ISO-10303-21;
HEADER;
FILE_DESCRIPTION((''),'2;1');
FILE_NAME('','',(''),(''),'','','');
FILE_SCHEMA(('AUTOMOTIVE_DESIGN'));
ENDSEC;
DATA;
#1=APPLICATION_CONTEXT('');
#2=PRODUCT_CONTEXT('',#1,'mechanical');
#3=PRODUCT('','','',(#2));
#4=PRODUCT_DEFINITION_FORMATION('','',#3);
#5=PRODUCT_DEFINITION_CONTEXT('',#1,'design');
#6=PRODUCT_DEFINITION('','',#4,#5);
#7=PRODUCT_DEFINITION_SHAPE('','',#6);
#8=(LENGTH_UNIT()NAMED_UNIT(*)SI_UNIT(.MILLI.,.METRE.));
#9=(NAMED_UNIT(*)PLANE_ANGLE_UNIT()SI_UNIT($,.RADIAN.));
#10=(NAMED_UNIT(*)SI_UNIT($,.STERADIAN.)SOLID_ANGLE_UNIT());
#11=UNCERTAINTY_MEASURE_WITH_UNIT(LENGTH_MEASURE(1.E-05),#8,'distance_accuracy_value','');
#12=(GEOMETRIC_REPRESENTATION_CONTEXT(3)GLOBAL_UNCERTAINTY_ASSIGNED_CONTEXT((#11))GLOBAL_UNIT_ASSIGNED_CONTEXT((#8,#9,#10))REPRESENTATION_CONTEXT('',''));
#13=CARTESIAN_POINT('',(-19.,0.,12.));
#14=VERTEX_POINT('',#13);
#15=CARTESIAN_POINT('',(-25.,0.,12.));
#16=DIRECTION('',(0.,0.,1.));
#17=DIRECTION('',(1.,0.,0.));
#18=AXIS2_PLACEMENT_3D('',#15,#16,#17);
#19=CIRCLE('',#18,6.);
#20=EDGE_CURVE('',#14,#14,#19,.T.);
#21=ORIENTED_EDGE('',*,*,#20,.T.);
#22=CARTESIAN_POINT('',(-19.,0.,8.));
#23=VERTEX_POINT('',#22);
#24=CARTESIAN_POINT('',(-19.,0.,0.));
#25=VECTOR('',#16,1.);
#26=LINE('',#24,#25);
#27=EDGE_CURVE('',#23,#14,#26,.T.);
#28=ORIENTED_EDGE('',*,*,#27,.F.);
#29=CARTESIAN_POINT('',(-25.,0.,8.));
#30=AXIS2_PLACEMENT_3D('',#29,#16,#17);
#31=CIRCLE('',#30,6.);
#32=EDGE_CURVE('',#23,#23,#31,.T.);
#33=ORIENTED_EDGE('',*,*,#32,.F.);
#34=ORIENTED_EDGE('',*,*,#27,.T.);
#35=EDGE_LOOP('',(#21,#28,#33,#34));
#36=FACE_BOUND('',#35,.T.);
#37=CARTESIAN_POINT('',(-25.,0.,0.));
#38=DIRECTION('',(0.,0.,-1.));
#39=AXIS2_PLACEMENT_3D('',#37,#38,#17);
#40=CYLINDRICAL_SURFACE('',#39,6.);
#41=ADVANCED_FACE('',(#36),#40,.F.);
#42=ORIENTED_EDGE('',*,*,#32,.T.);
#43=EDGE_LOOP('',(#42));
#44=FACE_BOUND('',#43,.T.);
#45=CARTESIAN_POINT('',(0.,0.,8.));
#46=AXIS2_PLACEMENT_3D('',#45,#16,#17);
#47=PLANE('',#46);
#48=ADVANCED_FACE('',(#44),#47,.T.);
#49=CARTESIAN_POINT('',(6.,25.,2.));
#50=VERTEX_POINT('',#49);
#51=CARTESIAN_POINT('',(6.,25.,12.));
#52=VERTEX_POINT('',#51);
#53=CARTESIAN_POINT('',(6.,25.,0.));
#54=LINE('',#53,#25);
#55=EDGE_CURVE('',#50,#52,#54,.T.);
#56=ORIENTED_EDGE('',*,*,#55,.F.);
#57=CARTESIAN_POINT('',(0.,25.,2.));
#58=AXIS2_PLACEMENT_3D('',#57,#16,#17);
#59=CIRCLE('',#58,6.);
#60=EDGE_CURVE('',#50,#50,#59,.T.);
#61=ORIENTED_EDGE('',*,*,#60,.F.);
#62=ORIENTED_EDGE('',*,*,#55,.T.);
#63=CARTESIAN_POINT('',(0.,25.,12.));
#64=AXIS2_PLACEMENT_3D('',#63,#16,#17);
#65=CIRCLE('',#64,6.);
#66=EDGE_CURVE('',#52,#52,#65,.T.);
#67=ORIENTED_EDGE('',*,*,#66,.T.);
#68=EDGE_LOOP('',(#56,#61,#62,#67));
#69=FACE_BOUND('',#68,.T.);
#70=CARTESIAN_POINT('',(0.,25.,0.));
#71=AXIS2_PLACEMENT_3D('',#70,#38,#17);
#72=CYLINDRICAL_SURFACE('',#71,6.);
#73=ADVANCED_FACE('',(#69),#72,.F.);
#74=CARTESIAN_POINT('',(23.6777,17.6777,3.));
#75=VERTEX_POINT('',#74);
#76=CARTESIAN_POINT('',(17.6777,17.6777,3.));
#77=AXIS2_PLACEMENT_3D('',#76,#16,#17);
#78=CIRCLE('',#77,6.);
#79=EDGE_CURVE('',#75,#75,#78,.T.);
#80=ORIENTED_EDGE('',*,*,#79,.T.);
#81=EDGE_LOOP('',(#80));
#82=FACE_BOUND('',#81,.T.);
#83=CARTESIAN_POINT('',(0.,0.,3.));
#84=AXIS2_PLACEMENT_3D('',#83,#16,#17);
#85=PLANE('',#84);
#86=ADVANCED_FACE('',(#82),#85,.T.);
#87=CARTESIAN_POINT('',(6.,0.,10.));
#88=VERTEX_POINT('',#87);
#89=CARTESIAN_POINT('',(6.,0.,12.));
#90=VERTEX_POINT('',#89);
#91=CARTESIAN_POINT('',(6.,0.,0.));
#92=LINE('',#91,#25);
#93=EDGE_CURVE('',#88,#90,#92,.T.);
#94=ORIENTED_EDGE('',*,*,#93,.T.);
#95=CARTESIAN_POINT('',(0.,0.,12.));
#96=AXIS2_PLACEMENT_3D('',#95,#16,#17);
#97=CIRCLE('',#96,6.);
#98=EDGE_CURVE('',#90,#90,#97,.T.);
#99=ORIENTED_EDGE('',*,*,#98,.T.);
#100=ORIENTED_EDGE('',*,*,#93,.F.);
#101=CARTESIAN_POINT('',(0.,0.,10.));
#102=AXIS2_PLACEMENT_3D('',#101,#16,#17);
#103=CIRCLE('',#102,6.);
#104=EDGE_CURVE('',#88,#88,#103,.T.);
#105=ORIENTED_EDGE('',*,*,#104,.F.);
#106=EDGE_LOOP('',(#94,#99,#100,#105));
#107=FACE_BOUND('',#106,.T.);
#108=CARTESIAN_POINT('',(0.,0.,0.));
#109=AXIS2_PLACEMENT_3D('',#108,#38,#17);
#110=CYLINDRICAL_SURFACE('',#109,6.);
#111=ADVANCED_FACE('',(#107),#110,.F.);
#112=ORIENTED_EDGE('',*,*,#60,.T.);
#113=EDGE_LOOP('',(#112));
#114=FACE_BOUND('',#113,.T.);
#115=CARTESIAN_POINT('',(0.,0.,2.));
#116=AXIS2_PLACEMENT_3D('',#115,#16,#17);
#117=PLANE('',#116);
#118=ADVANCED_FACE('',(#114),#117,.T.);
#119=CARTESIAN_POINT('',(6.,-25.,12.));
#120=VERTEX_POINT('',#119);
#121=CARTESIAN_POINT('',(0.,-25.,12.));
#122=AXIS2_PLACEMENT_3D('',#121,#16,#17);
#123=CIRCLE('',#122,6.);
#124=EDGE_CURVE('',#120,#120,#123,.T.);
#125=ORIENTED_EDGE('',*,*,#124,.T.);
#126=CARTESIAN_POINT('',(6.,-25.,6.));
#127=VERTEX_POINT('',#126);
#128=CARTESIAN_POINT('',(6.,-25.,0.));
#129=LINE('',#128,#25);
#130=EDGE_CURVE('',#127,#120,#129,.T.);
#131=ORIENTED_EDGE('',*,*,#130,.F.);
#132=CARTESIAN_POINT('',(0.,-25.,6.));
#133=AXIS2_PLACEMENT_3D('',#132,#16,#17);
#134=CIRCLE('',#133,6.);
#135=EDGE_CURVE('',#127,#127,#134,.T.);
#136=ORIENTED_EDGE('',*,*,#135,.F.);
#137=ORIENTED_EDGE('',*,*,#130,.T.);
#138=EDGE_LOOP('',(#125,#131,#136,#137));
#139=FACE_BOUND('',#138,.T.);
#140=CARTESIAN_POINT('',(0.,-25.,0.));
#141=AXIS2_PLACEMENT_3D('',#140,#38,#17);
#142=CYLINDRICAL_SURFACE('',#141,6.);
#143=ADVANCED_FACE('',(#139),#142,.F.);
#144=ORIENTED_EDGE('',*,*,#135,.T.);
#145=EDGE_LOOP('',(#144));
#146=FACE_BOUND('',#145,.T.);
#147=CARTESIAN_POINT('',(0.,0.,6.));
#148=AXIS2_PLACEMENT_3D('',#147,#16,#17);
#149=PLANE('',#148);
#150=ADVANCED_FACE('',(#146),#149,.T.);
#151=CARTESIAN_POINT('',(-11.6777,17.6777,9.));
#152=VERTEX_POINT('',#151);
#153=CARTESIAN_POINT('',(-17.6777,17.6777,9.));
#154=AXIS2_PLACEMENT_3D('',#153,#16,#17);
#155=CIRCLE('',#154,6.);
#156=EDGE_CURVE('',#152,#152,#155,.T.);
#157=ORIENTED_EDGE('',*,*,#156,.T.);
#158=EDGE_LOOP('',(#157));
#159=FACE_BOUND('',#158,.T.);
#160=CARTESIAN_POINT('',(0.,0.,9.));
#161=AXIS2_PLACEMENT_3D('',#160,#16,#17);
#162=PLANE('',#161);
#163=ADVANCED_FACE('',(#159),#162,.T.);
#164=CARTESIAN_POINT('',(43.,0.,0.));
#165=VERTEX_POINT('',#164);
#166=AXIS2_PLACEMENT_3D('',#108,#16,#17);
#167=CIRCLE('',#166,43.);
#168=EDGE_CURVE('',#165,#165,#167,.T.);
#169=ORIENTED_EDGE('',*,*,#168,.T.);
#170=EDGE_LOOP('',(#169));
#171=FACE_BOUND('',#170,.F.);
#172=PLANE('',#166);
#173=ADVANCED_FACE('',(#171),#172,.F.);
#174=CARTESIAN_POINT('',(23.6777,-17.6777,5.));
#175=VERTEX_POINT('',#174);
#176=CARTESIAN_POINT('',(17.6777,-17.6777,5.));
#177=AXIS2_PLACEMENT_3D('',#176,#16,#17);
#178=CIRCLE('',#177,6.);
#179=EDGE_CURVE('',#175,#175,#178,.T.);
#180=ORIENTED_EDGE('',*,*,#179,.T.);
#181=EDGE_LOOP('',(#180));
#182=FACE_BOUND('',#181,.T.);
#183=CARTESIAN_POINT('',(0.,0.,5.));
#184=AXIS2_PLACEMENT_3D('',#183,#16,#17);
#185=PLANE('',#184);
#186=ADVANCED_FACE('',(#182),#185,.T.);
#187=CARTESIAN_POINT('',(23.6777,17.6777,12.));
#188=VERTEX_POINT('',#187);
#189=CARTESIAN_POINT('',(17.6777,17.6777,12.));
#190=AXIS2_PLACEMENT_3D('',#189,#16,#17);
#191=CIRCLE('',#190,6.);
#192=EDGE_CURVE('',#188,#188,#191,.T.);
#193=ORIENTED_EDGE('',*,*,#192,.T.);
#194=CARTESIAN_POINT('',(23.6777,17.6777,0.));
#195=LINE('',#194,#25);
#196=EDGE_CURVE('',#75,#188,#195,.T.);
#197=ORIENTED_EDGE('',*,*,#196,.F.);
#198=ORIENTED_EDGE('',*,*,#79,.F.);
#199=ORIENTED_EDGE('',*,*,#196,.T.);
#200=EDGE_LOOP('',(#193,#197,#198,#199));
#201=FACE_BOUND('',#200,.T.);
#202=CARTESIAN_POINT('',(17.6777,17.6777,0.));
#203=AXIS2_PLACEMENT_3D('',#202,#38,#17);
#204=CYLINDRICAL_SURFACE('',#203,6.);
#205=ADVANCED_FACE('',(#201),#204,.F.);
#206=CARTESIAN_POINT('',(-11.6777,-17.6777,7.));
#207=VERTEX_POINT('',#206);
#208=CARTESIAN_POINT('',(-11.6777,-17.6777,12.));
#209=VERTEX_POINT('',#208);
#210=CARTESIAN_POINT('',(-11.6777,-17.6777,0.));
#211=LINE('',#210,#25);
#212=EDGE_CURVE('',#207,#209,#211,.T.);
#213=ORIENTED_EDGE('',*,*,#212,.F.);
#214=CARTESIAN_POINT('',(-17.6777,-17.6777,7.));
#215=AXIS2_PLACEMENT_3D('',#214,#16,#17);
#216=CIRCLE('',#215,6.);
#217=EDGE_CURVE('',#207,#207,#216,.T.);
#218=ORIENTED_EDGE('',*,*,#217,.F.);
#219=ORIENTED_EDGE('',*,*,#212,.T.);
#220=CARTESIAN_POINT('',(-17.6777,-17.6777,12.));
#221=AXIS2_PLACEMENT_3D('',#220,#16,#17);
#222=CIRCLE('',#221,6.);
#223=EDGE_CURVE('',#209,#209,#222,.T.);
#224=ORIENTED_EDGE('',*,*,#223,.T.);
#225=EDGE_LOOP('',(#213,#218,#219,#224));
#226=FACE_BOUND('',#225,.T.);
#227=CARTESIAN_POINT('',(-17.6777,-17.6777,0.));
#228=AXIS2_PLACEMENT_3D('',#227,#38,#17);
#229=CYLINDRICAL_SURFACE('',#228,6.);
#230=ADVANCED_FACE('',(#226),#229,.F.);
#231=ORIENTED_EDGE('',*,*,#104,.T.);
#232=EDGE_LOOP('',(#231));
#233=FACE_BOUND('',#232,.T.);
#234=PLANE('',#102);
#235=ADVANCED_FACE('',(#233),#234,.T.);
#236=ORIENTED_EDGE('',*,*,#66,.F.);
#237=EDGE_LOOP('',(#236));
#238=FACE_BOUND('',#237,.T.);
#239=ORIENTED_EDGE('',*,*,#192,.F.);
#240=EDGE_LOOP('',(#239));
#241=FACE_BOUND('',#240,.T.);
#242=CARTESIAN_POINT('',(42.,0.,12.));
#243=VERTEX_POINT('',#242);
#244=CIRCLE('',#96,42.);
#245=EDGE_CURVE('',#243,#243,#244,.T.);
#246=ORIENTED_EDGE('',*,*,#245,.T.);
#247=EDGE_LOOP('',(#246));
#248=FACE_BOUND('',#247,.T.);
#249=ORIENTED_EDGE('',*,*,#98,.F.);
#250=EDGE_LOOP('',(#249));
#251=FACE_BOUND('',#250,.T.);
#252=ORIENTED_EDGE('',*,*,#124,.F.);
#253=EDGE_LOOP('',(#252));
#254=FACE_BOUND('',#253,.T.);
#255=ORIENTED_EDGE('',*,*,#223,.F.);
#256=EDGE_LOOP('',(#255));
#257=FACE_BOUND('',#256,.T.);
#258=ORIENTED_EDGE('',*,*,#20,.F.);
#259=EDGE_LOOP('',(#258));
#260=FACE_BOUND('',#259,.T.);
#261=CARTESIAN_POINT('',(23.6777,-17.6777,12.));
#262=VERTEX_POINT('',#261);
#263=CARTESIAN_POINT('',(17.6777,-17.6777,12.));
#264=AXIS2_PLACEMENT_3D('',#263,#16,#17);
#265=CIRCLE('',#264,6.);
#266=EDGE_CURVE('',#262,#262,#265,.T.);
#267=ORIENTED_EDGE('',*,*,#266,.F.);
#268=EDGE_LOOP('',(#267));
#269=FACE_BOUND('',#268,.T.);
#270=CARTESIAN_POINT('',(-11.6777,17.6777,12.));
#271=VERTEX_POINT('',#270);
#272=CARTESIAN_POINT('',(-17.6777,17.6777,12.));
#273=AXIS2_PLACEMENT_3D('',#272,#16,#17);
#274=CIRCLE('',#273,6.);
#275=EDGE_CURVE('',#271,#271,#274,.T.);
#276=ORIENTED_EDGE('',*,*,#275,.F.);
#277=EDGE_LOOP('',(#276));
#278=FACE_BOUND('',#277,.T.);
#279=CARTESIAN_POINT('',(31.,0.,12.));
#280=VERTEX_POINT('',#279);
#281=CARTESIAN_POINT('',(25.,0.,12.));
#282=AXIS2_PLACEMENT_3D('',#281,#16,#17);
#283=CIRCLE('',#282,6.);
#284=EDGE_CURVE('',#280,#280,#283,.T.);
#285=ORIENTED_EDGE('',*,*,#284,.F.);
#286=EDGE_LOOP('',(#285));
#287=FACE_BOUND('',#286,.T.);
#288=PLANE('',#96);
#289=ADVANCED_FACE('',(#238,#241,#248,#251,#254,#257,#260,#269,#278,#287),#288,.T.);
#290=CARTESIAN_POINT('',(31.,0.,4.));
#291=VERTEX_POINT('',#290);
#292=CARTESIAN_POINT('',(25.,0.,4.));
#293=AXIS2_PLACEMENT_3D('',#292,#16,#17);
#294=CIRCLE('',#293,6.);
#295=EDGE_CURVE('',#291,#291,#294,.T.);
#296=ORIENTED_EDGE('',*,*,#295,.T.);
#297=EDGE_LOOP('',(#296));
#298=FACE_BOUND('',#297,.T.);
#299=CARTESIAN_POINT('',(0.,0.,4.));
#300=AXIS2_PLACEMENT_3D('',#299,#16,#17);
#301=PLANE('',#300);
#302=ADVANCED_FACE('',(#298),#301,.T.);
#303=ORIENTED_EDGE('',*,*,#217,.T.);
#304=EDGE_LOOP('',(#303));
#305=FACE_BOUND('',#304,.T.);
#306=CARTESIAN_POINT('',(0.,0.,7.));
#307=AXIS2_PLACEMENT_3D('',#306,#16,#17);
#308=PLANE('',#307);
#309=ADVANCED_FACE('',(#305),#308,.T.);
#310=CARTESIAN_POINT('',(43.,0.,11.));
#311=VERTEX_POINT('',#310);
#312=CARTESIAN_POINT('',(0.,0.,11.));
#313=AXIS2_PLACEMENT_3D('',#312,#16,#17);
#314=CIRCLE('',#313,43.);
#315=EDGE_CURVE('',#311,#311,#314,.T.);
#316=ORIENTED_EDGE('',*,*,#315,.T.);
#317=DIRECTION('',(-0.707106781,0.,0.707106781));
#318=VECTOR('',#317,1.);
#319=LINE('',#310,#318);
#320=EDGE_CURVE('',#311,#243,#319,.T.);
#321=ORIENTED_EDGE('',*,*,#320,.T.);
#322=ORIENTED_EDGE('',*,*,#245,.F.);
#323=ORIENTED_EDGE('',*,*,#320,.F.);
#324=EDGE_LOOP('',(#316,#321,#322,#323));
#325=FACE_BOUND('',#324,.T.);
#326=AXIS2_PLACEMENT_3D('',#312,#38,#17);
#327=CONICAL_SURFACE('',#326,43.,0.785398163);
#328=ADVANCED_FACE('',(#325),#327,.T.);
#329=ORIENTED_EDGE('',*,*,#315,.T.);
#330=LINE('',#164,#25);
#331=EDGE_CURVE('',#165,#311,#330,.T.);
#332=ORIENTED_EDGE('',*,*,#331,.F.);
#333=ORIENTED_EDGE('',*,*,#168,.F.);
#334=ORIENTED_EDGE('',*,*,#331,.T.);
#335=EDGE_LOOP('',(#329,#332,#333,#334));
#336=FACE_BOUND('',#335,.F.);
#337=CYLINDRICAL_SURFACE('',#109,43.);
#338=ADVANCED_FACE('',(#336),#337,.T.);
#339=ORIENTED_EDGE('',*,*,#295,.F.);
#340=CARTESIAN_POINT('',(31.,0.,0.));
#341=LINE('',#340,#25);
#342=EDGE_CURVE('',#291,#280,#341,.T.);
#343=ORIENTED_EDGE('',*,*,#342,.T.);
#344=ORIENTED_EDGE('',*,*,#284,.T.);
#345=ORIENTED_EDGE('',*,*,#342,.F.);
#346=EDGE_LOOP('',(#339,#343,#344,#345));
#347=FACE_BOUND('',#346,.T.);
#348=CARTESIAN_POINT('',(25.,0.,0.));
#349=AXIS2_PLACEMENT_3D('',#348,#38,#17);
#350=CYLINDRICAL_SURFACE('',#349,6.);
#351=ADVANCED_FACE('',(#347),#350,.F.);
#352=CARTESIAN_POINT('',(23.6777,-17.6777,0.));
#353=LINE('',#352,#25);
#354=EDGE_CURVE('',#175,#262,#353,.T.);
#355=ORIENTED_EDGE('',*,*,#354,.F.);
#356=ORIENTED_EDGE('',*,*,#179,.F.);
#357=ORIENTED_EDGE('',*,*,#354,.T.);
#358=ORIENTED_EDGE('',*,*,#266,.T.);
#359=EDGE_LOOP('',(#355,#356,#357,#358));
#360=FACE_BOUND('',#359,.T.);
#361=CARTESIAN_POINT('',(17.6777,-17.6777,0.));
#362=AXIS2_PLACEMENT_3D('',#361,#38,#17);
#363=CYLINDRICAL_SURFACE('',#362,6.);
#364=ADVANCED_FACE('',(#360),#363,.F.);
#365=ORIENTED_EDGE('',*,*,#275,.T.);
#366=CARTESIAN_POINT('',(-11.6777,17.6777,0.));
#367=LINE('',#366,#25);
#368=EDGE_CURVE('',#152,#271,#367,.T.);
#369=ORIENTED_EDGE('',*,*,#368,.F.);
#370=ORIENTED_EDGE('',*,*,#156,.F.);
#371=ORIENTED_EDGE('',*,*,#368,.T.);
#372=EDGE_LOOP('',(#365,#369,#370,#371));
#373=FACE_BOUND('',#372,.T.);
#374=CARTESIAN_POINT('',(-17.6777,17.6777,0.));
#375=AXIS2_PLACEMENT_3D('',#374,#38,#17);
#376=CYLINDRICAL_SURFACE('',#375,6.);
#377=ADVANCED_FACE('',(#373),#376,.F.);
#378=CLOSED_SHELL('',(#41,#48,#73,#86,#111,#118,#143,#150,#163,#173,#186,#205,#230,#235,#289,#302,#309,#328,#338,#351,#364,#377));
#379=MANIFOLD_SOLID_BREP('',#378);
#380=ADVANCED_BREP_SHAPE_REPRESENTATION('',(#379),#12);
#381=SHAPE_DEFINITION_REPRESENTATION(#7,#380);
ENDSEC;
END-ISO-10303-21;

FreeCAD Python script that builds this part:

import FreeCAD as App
import Part
import Sketcher

V = App.Vector


def edges_at(feature, points):
    """Names of the edges that pass closest to the given points."""
    edges = feature.Shape.Edges
    near = lambda p: min(range(len(edges)), key=lambda i: edges[i].distToShape(Part.Vertex(*p))[0])
    return sorted({f"Edge{near(p) + 1}" for p in points})

doc = App.newDocument("Part")
body = doc.addObject("PartDesign::Body", "Body")

# Sketch on XY plane
sketch1 = doc.addObject("Sketcher::SketchObject", "Sketch")
body.addObject(sketch1)
sketch1.AttachmentSupport = (doc.XY_Plane, [""])
sketch1.MapMode = "FlatFace"
sketch1.addGeometry(Part.Circle(V(0, 0, 0), V(0, 0, 1), 43), False)
sketch1.addGeometry(Part.Circle(V(-17.6777, -17.6777, 0), V(0, 0, 1), 6), False)
sketch1.addGeometry(Part.Circle(V(0, -25, 0), V(0, 0, 1), 6), False)
sketch1.addGeometry(Part.Circle(V(17.6777, -17.6777, 0), V(0, 0, 1), 6), False)
sketch1.addGeometry(Part.Circle(V(-25, 0, 0), V(0, 0, 1), 6), False)
sketch1.addGeometry(Part.Circle(V(-17.6777, 17.6777, 0), V(0, 0, 1), 6), False)
sketch1.addGeometry(Part.Circle(V(0, 0, 0), V(0, 0, 1), 6), False)
sketch1.addGeometry(Part.Circle(V(17.6777, 17.6777, 0), V(0, 0, 1), 6), False)
sketch1.addGeometry(Part.Circle(V(25, 0, 0), V(0, 0, 1), 6), False)
sketch1.addGeometry(Part.Circle(V(0, 25, 0), V(0, 0, 1), 6), False)
sketch1.addConstraint(Sketcher.Constraint("Coincident", 0, 3, -1, 1))
sketch1.addConstraint(Sketcher.Constraint("Coincident", 6, 3, -1, 1))
sketch1.addConstraint(Sketcher.Constraint("Equal", 1, 2))
sketch1.addConstraint(Sketcher.Constraint("Equal", 2, 3))
sketch1.addConstraint(Sketcher.Constraint("Equal", 3, 4))
sketch1.addConstraint(Sketcher.Constraint("Equal", 4, 5))
sketch1.addConstraint(Sketcher.Constraint("Equal", 5, 6))
sketch1.addConstraint(Sketcher.Constraint("Equal", 6, 7))
sketch1.addConstraint(Sketcher.Constraint("Equal", 7, 8))
sketch1.addConstraint(Sketcher.Constraint("Equal", 8, 9))
sketch1.addConstraint(Sketcher.Constraint("Symmetric", 3, 3, 5, 3, -1, 1))
sketch1.addConstraint(Sketcher.Constraint("Symmetric", 1, 3, 7, 3, -1, 1))
sketch1.addConstraint(Sketcher.Constraint("Symmetric", 4, 3, 8, 3, -1, 1))
sketch1.addConstraint(Sketcher.Constraint("Symmetric", 2, 3, 9, 3, -1, 1))
sketch1.addConstraint(Sketcher.Constraint("Symmetric", 1, 3, 3, 3, -2))
sketch1.addConstraint(Sketcher.Constraint("PointOnObject", 2, 3, -2))
sketch1.addConstraint(Sketcher.Constraint("PointOnObject", 4, 3, -1))
sketch1.addConstraint(Sketcher.Constraint("Diameter", 0, 86.0))
sketch1.addConstraint(Sketcher.Constraint("Diameter", 1, 12.0))
sketch1.addConstraint(Sketcher.Constraint("DistanceY", 2, 3, -1, 1, 25.0))
sketch1.addConstraint(Sketcher.Constraint("DistanceX", 4, 3, -1, 1, 25.0))
sketch1.addConstraint(Sketcher.Constraint("DistanceX", 1, 3, -1, 1, 17.6777))
sketch1.addConstraint(Sketcher.Constraint("DistanceY", 1, 3, -1, 1, 17.6777))
pad1 = doc.addObject("PartDesign::Pad", "Pad")
body.addObject(pad1)
pad1.Profile = sketch1
pad1.Length = 12

# Sketch on XY plane
sketch2 = doc.addObject("Sketcher::SketchObject", "Sketch001")
body.addObject(sketch2)
sketch2.AttachmentSupport = (doc.XY_Plane, [""])
sketch2.MapMode = "FlatFace"
sketch2.addGeometry(Part.Circle(V(0, 25, 0), V(0, 0, 1), 6), False)
sketch2.addConstraint(Sketcher.Constraint("PointOnObject", 0, 3, -2))
sketch2.addConstraint(Sketcher.Constraint("Diameter", 0, 12.0))
sketch2.addConstraint(Sketcher.Constraint("DistanceY", -1, 1, 0, 3, 25.0))
pad2 = doc.addObject("PartDesign::Pad", "Pad001")
body.addObject(pad2)
pad2.Profile = sketch2
pad2.Length = 2

# Sketch on XY plane
sketch3 = doc.addObject("Sketcher::SketchObject", "Sketch002")
body.addObject(sketch3)
sketch3.AttachmentSupport = (doc.XY_Plane, [""])
sketch3.MapMode = "FlatFace"
sketch3.addGeometry(Part.Circle(V(17.6777, 17.6777, 0), V(0, 0, 1), 6), False)
sketch3.addConstraint(Sketcher.Constraint("Diameter", 0, 12.0))
sketch3.addConstraint(Sketcher.Constraint("DistanceX", -1, 1, 0, 3, 17.6777))
sketch3.addConstraint(Sketcher.Constraint("DistanceY", -1, 1, 0, 3, 17.6777))
pad3 = doc.addObject("PartDesign::Pad", "Pad002")
body.addObject(pad3)
pad3.Profile = sketch3
pad3.Length = 3

# Sketch on XY plane
sketch4 = doc.addObject("Sketcher::SketchObject", "Sketch003")
body.addObject(sketch4)
sketch4.AttachmentSupport = (doc.XY_Plane, [""])
sketch4.MapMode = "FlatFace"
sketch4.addGeometry(Part.Circle(V(25, 0, 0), V(0, 0, 1), 6), False)
sketch4.addConstraint(Sketcher.Constraint("PointOnObject", 0, 3, -1))
sketch4.addConstraint(Sketcher.Constraint("Diameter", 0, 12.0))
sketch4.addConstraint(Sketcher.Constraint("DistanceX", -1, 1, 0, 3, 25.0))
pad4 = doc.addObject("PartDesign::Pad", "Pad003")
body.addObject(pad4)
pad4.Profile = sketch4
pad4.Length = 4

# Sketch on XY plane
sketch5 = doc.addObject("Sketcher::SketchObject", "Sketch004")
body.addObject(sketch5)
sketch5.AttachmentSupport = (doc.XY_Plane, [""])
sketch5.MapMode = "FlatFace"
sketch5.addGeometry(Part.Circle(V(17.6777, -17.6777, 0), V(0, 0, 1), 6), False)
sketch5.addConstraint(Sketcher.Constraint("Diameter", 0, 12.0))
sketch5.addConstraint(Sketcher.Constraint("DistanceX", -1, 1, 0, 3, 17.6777))
sketch5.addConstraint(Sketcher.Constraint("DistanceY", 0, 3, -1, 1, 17.6777))
pad5 = doc.addObject("PartDesign::Pad", "Pad004")
body.addObject(pad5)
pad5.Profile = sketch5
pad5.Length = 5

# Sketch on XY plane
sketch6 = doc.addObject("Sketcher::SketchObject", "Sketch005")
body.addObject(sketch6)
sketch6.AttachmentSupport = (doc.XY_Plane, [""])
sketch6.MapMode = "FlatFace"
sketch6.addGeometry(Part.Circle(V(0, -25, 0), V(0, 0, 1), 6), False)
sketch6.addConstraint(Sketcher.Constraint("PointOnObject", 0, 3, -2))
sketch6.addConstraint(Sketcher.Constraint("Diameter", 0, 12.0))
sketch6.addConstraint(Sketcher.Constraint("DistanceY", 0, 3, -1, 1, 25.0))
pad6 = doc.addObject("PartDesign::Pad", "Pad005")
body.addObject(pad6)
pad6.Profile = sketch6
pad6.Length = 6

# Sketch on XY plane
sketch7 = doc.addObject("Sketcher::SketchObject", "Sketch006")
body.addObject(sketch7)
sketch7.AttachmentSupport = (doc.XY_Plane, [""])
sketch7.MapMode = "FlatFace"
sketch7.addGeometry(Part.Circle(V(-17.6777, -17.6777, 0), V(0, 0, 1), 6), False)
sketch7.addConstraint(Sketcher.Constraint("Diameter", 0, 12.0))
sketch7.addConstraint(Sketcher.Constraint("DistanceX", 0, 3, -1, 1, 17.6777))
sketch7.addConstraint(Sketcher.Constraint("DistanceY", 0, 3, -1, 1, 17.6777))
pad7 = doc.addObject("PartDesign::Pad", "Pad006")
body.addObject(pad7)
pad7.Profile = sketch7
pad7.Length = 7

# Sketch on XY plane
sketch8 = doc.addObject("Sketcher::SketchObject", "Sketch007")
body.addObject(sketch8)
sketch8.AttachmentSupport = (doc.XY_Plane, [""])
sketch8.MapMode = "FlatFace"
sketch8.addGeometry(Part.Circle(V(-25, 0, 0), V(0, 0, 1), 6), False)
sketch8.addConstraint(Sketcher.Constraint("PointOnObject", 0, 3, -1))
sketch8.addConstraint(Sketcher.Constraint("Diameter", 0, 12.0))
sketch8.addConstraint(Sketcher.Constraint("DistanceX", 0, 3, -1, 1, 25.0))
pad8 = doc.addObject("PartDesign::Pad", "Pad007")
body.addObject(pad8)
pad8.Profile = sketch8
pad8.Length = 8

# Sketch on XY plane
sketch9 = doc.addObject("Sketcher::SketchObject", "Sketch008")
body.addObject(sketch9)
sketch9.AttachmentSupport = (doc.XY_Plane, [""])
sketch9.MapMode = "FlatFace"
sketch9.addGeometry(Part.Circle(V(-17.6777, 17.6777, 0), V(0, 0, 1), 6), False)
sketch9.addConstraint(Sketcher.Constraint("Diameter", 0, 12.0))
sketch9.addConstraint(Sketcher.Constraint("DistanceX", 0, 3, -1, 1, 17.6777))
sketch9.addConstraint(Sketcher.Constraint("DistanceY", -1, 1, 0, 3, 17.6777))
pad9 = doc.addObject("PartDesign::Pad", "Pad008")
body.addObject(pad9)
pad9.Profile = sketch9
pad9.Length = 9

# Sketch on XY plane
sketch10 = doc.addObject("Sketcher::SketchObject", "Sketch009")
body.addObject(sketch10)
sketch10.AttachmentSupport = (doc.XY_Plane, [""])
sketch10.MapMode = "FlatFace"
sketch10.addGeometry(Part.Circle(V(0, 0, 0), V(0, 0, 1), 6), False)
sketch10.addConstraint(Sketcher.Constraint("Coincident", 0, 3, -1, 1))
sketch10.addConstraint(Sketcher.Constraint("Diameter", 0, 12.0))
pad10 = doc.addObject("PartDesign::Pad", "Pad009")
body.addObject(pad10)
pad10.Profile = sketch10
pad10.Length = 10
doc.recompute()

chamfer = doc.addObject("PartDesign::Chamfer", "Chamfer")
body.addObject(chamfer)
chamfer.Base = (pad10, edges_at(pad10, [(-43, 0, 12)]))
chamfer.Size = 1

doc.recompute()
